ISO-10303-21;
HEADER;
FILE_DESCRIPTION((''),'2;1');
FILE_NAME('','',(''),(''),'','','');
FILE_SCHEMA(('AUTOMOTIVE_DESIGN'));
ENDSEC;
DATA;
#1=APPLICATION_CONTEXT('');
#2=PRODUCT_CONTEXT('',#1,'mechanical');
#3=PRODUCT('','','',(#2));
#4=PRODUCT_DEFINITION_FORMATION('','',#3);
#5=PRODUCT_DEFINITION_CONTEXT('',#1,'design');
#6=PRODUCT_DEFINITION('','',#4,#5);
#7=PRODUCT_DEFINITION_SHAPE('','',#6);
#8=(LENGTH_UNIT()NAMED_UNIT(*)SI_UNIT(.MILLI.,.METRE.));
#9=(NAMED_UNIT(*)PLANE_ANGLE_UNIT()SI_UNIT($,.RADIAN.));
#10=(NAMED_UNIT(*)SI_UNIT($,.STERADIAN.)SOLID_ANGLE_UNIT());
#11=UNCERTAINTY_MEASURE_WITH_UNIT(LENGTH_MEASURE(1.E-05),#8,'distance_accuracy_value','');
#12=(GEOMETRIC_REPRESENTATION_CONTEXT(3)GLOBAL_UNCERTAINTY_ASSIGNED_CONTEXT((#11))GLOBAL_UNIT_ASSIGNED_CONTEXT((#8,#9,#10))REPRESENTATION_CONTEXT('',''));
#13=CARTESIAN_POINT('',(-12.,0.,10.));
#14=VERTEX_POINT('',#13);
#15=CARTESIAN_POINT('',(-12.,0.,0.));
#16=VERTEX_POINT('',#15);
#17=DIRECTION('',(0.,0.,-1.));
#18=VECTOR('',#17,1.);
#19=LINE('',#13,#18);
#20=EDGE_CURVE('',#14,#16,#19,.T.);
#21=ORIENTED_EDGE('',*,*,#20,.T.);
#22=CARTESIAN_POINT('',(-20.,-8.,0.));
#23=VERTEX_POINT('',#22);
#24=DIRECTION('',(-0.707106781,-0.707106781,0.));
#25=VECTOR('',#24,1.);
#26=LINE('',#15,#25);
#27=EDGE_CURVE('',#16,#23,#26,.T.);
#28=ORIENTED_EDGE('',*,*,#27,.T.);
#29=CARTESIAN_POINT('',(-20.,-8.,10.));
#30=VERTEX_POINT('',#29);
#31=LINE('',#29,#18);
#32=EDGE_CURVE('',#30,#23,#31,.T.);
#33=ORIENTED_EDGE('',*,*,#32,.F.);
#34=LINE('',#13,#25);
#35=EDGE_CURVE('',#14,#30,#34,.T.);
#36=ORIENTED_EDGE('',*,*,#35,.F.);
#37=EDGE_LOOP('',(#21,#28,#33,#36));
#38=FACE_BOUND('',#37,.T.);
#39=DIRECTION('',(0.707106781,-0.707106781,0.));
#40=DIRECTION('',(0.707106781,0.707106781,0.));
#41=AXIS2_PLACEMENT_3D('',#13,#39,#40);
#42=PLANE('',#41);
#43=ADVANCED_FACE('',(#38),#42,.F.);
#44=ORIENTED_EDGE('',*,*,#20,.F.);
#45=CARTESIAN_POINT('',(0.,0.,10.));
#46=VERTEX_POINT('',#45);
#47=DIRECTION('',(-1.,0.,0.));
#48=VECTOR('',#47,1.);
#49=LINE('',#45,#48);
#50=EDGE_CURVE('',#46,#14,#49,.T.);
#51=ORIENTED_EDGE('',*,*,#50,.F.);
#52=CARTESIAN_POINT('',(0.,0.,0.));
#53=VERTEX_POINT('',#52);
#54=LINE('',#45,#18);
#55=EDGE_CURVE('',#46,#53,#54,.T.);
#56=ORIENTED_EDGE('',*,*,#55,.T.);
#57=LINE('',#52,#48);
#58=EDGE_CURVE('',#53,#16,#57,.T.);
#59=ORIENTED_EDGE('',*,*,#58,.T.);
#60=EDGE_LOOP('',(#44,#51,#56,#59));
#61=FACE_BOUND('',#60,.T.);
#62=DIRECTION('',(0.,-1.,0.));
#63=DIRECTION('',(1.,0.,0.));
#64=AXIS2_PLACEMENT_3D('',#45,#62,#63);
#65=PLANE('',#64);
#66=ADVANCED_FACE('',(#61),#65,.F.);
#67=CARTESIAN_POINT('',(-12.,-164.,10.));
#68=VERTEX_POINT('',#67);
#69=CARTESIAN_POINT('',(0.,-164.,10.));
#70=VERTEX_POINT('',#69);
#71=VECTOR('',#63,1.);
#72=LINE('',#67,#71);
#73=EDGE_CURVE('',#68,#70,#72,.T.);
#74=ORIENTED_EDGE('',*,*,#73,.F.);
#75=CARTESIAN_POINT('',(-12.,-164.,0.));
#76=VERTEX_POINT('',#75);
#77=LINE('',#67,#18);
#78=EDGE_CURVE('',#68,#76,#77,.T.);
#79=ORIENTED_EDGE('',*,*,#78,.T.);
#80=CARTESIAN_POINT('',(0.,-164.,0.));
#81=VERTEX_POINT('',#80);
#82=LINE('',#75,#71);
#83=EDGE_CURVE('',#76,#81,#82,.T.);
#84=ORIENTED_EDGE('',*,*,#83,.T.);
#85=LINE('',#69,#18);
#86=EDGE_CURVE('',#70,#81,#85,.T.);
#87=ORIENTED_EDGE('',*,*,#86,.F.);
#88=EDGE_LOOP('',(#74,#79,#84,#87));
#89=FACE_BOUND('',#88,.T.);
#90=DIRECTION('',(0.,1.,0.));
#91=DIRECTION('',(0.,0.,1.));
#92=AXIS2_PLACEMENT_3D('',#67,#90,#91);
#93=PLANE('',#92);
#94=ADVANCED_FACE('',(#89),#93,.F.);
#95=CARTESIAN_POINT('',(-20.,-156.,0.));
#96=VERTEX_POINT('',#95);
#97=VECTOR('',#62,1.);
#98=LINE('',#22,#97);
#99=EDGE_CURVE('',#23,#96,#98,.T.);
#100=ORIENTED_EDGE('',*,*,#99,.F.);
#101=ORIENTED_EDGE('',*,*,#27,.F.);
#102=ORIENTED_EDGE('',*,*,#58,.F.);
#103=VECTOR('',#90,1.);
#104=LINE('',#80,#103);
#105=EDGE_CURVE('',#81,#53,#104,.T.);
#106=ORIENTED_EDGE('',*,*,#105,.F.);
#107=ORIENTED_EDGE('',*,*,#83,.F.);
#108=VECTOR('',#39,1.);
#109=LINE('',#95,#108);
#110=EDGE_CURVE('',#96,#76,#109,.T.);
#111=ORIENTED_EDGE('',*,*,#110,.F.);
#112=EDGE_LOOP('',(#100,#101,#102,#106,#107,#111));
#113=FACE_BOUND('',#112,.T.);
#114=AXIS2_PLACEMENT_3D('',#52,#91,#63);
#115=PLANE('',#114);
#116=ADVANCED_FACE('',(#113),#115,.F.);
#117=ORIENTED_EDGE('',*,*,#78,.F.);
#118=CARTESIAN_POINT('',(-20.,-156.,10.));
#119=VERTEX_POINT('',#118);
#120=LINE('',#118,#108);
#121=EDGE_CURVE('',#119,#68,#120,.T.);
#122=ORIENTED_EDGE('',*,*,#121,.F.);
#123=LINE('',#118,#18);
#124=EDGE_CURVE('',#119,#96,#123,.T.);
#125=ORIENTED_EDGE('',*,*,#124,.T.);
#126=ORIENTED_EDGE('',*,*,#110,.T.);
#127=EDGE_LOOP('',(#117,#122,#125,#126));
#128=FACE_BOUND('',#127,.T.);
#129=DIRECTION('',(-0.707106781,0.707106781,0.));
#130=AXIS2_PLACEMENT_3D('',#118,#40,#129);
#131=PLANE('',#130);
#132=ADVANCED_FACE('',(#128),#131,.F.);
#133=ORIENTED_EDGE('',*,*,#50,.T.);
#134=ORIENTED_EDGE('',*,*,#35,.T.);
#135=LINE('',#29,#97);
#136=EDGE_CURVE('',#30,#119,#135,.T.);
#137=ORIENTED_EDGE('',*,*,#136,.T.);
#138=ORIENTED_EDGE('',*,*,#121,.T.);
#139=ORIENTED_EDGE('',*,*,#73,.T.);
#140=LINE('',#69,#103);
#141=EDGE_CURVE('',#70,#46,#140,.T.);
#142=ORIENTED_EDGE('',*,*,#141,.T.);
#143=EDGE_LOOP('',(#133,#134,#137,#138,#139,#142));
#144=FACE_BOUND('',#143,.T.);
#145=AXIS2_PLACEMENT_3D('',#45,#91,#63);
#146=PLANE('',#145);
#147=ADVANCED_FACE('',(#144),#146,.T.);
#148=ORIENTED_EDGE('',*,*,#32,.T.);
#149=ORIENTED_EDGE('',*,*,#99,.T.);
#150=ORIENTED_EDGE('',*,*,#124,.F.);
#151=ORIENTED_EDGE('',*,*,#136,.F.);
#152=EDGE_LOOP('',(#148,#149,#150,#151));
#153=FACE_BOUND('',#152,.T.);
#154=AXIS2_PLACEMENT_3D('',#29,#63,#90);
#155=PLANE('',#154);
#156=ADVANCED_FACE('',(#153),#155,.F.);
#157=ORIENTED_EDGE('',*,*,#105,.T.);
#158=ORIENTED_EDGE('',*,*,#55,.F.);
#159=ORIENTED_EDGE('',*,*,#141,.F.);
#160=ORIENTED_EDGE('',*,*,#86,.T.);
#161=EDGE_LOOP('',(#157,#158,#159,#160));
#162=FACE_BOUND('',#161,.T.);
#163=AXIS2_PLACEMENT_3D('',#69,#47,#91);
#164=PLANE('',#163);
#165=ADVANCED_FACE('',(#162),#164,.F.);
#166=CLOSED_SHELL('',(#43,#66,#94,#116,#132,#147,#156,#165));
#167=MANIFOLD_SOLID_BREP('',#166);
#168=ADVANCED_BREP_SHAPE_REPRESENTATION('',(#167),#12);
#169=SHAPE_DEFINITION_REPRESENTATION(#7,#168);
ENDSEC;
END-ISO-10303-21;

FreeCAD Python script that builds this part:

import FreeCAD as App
import Part
import Sketcher
Q = App.Units.Quantity

doc = App.newDocument("Part")
body = doc.addObject("PartDesign::Body", "Body")

# Sketch on XY plane
sketch1 = doc.addObject("Sketcher::SketchObject", "Sketch")
body.addObject(sketch1)
sketch1.AttachmentSupport = (doc.XY_Plane, [""])
sketch1.MapMode = "FlatFace"
sketch1.addGeometry(Part.LineSegment(App.Vector(0, 0, 0), App.Vector(-12, 0, 0)), False)
sketch1.addGeometry(Part.LineSegment(App.Vector(-12, 0, 0), App.Vector(-20, -8, 0)), False)
sketch1.addGeometry(Part.LineSegment(App.Vector(-20, -8, 0), App.Vector(-20, -156, 0)), False)
sketch1.addGeometry(Part.LineSegment(App.Vector(-20, -156, 0), App.Vector(-12, -164, 0)), False)
sketch1.addGeometry(Part.LineSegment(App.Vector(-12, -164, 0), App.Vector(0, -164, 0)), False)
sketch1.addGeometry(Part.LineSegment(App.Vector(0, -164, 0), App.Vector(0, 0, 0)), False)
sketch1.addConstraint(Sketcher.Constraint("Coincident", 0, 2, 1, 1))
sketch1.addConstraint(Sketcher.Constraint("Coincident", 1, 2, 2, 1))
sketch1.addConstraint(Sketcher.Constraint("Coincident", 2, 2, 3, 1))
sketch1.addConstraint(Sketcher.Constraint("Coincident", 3, 2, 4, 1))
sketch1.addConstraint(Sketcher.Constraint("Coincident", 4, 2, 5, 1))
sketch1.addConstraint(Sketcher.Constraint("Coincident", 5, 2, 0, 1))
sketch1.addConstraint(Sketcher.Constraint("Horizontal", 0))
sketch1.addConstraint(Sketcher.Constraint("Vertical", 2))
sketch1.addConstraint(Sketcher.Constraint("Horizontal", 4))
sketch1.addConstraint(Sketcher.Constraint("Vertical", 5))
sketch1.addConstraint(Sketcher.Constraint("Coincident", 5, 2, -1, 1))
sketch1.addConstraint(Sketcher.Constraint("Perpendicular", 1, 3))
sketch1.addConstraint(Sketcher.Constraint("Vertical", 0, 2, 3, 2))
sketch1.addConstraint(Sketcher.Constraint("Equal", 1, 3))
sketch1.addConstraint(Sketcher.Constraint("DistanceX", 0, 2, 0, 1, Q("12 mm")))
sketch1.addConstraint(Sketcher.Constraint("DistanceY", 2, 2, 2, 1, Q("148 mm")))
sketch1.addConstraint(Sketcher.Constraint("DistanceY", 5, 1, 5, 2, Q("164 mm")))
pad1 = doc.addObject("PartDesign::Pad", "Pad")
body.addObject(pad1)
pad1.Profile = sketch1
pad1.Length = 10

doc.recompute()
